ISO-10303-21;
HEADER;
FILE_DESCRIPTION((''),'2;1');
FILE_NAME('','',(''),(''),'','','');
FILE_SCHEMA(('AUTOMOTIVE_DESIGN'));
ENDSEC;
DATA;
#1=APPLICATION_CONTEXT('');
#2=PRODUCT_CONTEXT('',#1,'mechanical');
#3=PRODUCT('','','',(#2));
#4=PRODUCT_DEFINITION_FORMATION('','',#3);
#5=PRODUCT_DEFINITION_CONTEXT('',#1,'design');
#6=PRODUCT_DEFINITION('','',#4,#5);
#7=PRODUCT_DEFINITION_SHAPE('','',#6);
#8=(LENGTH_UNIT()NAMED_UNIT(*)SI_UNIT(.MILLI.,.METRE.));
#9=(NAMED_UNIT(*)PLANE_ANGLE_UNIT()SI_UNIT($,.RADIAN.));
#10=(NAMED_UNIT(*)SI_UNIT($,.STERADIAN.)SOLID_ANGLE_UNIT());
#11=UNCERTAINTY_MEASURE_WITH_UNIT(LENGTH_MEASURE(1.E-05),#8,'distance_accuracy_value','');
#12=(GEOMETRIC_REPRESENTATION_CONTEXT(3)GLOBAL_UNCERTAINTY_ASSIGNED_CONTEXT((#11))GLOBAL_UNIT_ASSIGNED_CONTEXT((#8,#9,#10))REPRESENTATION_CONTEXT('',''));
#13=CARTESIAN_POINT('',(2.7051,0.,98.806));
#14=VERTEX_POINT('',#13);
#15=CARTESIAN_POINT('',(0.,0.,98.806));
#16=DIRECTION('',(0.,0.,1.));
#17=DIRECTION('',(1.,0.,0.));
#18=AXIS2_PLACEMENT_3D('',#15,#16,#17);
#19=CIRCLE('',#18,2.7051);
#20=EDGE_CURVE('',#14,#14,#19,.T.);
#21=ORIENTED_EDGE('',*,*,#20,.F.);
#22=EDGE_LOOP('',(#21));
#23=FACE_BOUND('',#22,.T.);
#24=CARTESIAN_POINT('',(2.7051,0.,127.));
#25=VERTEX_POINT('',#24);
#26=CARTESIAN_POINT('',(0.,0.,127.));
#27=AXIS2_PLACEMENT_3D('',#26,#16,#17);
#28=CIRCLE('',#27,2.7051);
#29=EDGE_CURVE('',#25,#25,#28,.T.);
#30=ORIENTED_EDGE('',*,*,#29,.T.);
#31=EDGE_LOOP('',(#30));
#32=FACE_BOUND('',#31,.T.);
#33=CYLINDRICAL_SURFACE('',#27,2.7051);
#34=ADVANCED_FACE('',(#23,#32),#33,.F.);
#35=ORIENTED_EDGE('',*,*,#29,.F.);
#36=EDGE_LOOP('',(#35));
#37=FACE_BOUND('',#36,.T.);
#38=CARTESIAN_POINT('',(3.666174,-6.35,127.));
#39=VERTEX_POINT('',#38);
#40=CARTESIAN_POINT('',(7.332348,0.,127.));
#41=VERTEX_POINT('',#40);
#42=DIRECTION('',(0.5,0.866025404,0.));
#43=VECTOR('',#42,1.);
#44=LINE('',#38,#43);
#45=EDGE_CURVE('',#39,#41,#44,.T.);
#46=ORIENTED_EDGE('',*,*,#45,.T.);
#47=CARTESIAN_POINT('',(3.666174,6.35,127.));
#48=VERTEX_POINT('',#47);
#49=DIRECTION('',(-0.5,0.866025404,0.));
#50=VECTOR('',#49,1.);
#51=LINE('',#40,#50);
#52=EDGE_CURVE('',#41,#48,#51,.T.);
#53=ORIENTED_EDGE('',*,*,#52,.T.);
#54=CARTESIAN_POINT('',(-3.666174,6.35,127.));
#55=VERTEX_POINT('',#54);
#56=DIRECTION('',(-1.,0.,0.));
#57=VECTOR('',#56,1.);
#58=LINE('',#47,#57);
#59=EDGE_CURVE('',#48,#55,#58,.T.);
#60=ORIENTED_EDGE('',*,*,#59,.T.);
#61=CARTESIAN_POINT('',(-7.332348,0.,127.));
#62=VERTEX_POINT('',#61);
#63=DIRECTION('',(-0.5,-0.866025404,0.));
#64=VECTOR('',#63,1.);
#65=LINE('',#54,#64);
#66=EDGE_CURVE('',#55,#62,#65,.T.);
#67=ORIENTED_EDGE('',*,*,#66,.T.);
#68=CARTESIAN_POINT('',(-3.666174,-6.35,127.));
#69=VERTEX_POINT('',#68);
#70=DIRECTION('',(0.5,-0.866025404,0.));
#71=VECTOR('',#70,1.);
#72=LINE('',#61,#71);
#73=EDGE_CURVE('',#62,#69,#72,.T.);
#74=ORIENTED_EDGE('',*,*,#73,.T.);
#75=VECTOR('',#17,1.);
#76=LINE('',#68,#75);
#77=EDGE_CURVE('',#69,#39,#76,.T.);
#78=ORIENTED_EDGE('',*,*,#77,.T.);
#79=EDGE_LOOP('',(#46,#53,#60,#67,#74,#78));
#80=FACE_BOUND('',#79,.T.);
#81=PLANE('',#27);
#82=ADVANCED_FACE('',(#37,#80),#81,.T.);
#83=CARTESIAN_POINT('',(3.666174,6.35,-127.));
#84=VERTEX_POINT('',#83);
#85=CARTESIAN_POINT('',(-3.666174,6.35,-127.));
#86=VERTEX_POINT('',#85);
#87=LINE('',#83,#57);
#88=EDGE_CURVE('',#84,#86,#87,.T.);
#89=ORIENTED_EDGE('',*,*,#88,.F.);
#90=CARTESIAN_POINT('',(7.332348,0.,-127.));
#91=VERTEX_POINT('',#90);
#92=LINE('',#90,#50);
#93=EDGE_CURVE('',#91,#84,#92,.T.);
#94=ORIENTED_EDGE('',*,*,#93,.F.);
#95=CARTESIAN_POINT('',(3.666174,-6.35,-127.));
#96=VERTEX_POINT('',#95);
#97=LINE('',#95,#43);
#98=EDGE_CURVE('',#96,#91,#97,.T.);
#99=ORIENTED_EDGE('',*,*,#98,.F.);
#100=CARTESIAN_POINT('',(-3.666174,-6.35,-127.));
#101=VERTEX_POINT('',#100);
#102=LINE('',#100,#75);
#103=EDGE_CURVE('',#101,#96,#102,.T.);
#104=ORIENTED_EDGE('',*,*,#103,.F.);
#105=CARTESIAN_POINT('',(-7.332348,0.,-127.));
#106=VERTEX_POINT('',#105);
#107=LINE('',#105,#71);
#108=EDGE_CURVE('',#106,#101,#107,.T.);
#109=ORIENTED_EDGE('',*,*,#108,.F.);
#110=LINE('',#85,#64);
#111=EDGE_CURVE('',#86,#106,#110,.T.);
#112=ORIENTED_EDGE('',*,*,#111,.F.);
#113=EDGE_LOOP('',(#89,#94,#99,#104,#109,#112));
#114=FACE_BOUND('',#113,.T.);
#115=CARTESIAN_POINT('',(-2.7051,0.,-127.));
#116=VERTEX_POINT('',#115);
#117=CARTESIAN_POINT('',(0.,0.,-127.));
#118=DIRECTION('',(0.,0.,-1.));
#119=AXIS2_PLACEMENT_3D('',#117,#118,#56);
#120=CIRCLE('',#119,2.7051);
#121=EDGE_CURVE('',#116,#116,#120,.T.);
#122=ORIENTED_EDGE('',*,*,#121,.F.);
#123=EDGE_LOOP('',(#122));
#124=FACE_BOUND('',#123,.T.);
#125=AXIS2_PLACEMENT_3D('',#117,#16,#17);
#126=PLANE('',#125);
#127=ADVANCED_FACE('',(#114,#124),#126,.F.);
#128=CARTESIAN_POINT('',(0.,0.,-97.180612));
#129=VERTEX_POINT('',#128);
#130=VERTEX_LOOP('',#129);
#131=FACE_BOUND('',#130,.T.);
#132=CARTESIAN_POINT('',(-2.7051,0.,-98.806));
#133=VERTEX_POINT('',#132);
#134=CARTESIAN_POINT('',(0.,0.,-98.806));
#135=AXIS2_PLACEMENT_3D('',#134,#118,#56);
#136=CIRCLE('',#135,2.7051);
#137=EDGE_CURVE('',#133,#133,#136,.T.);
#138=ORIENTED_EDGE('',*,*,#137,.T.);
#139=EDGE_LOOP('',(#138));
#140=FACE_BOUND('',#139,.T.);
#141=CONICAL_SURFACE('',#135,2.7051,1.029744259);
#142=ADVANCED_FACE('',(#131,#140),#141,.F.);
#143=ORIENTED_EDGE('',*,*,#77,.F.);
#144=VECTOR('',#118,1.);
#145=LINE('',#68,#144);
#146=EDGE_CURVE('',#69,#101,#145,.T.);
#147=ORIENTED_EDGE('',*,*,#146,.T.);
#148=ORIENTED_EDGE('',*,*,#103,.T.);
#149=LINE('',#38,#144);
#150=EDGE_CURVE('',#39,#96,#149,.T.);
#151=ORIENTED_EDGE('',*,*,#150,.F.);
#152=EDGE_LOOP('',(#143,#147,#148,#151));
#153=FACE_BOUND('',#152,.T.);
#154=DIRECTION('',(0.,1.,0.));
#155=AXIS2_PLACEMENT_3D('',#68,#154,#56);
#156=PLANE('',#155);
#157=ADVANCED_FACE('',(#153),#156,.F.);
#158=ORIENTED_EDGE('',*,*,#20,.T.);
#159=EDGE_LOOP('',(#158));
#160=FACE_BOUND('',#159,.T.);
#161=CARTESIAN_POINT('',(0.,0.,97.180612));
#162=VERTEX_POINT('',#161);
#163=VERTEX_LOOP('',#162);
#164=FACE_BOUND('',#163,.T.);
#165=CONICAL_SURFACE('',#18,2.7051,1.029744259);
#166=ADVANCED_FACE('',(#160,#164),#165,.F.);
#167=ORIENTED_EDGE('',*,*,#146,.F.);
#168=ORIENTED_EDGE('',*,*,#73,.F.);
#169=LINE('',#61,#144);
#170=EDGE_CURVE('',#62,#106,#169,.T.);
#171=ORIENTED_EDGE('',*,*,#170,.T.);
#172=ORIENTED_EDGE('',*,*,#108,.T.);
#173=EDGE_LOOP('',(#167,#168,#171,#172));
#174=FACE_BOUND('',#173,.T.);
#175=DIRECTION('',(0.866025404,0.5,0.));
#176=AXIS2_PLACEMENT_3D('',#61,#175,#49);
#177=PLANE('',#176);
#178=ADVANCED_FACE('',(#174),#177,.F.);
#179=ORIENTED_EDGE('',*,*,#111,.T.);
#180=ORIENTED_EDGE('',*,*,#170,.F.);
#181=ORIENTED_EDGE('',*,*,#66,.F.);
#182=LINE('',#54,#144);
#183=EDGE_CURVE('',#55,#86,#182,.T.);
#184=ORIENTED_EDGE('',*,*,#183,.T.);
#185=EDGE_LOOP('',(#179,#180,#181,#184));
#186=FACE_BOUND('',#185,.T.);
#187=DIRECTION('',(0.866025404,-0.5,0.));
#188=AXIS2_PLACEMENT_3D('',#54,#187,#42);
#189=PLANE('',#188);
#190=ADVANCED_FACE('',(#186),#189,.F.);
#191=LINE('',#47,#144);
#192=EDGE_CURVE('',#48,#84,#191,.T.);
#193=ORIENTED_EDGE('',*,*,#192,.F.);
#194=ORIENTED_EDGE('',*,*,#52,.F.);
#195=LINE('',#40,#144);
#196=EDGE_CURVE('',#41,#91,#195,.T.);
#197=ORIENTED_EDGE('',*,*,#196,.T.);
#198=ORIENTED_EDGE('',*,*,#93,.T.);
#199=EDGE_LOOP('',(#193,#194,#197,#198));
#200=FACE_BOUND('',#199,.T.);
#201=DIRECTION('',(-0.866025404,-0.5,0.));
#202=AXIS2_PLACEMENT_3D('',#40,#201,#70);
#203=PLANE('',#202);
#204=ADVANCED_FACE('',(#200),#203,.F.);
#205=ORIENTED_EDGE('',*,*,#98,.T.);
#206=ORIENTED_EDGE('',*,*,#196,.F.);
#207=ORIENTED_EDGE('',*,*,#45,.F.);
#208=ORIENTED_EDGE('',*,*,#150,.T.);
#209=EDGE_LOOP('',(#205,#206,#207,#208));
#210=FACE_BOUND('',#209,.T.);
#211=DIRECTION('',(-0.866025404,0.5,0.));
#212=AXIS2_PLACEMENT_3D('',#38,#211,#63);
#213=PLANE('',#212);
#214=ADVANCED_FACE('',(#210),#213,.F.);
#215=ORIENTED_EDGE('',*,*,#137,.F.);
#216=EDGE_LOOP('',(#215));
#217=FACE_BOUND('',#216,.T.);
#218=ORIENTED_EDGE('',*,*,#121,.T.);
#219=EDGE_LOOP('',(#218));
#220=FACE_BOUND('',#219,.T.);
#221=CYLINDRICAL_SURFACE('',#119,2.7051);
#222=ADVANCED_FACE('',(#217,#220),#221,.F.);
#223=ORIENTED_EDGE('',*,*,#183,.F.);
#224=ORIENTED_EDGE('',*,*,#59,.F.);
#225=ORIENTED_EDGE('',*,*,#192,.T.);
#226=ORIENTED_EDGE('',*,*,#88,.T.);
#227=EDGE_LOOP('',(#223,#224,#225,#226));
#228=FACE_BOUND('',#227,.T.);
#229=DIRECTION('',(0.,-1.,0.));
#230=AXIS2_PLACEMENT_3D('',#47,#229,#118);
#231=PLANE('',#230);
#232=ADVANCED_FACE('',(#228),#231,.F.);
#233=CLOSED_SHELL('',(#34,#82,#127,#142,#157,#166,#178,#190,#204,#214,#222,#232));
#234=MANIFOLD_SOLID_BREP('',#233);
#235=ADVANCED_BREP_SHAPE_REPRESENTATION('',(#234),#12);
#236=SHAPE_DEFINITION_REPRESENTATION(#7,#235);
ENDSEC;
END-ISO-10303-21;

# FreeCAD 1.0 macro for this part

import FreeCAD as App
import Part
import Sketcher
from FreeCAD import Vector
Q = App.Units.Quantity


def add_polygon(sketch, points):
    """Adds a closed chain of lines whose ends are joined by coincident constraints."""
    first, n = sketch.GeometryCount, len(points)
    for a, b in zip(points, points[1:] + points[:1]):
        sketch.addGeometry(Part.LineSegment(App.Vector(*a, 0), App.Vector(*b, 0)), False)
    for i in range(n):
        sketch.addConstraint(Sketcher.Constraint("Coincident", first + i, 2, first + (i + 1) % n, 1))

doc = App.newDocument("Part")
body = doc.addObject("PartDesign::Body", "Body")

# Sketch on XY plane
sketch1 = body.newObject("Sketcher::SketchObject", "Sketch")
sketch1.AttachmentSupport = (doc.getObject("XY_Plane"), [""])
sketch1.MapMode = "FlatFace"
add_polygon(sketch1, [(7, 0), (4, 6), (-4, 6), (-7, 0), (-4, -6), (4, -6)])  # lines 0-5
sketch1.addConstraint(Sketcher.Constraint("Horizontal", 1))
sketch1.addConstraint(Sketcher.Constraint("Horizontal", 4))
sketch1.addConstraint(Sketcher.Constraint("Symmetric", 0, 2, 3, 2, -1, 1))
sketch1.addConstraint(Sketcher.Constraint("Symmetric", 2, 2, 5, 2, -1, 1))
sketch1.addConstraint(Sketcher.Constraint("PointOnObject", 2, 2, -1))
sketch1.addConstraint(Sketcher.Constraint("Parallel", 2, 5))
sketch1.addConstraint(Sketcher.Constraint("Vertical", 1, 2, 3, 2))
sketch1.addConstraint(Sketcher.Constraint("Angle", 0, Q("120 deg")))
sketch1.addConstraint(Sketcher.Constraint("DistanceY", 3, 2, 1, 2, Q("0.5 in")))
sketch1.addConstraint(Sketcher.Constraint("DistanceX", 1, 2, 1, 1, 7.332348))
pad1 = body.newObject("PartDesign::Pad", "Pad")
pad1.Profile = sketch1
pad1.Length = Q("10 in")
pad1.Midplane = True

# Sketch on XY plane
sketch2 = body.newObject("Sketcher::SketchObject", "Sketch001")
sketch2.AttachmentSupport = (doc.getObject("XY_Plane"), [""])
sketch2.MapMode = "FlatFace"
sketch2.AttachmentOffset = App.Placement(Vector(0, 0, 5 * 25.4), App.Rotation())
sketch2.addGeometry(Part.Circle(Vector(0, 0, 0), Vector(0, 0, 1), 2.7), False)
sketch2.addConstraint(Sketcher.Constraint("Coincident", 0, 3, -1, 1))
sketch2.addConstraint(Sketcher.Constraint("Diameter", 0, Q("0.213 in")))
doc.recompute()
hole = body.newObject("PartDesign::Hole", "Hole")
hole.Profile = sketch2
hole.ThreadType = "None"
hole.Diameter = Q("0.213 in")
hole.DepthType = "Dimension"
hole.Depth = Q("1.11 in")
hole.DrillPoint = "Angled"
hole.DrillPointAngle = 118

# Sketch on XY plane
sketch3 = body.newObject("Sketcher::SketchObject", "Sketch002")
sketch3.AttachmentSupport = (doc.getObject("XY_Plane"), [""])
sketch3.MapMode = "FlatFace"
sketch3.AttachmentOffset = App.Placement(Vector(0, 0, -5 * 25.4), App.Rotation())
sketch3.addGeometry(Part.Circle(Vector(0, 0, 0), Vector(0, 0, 1), 2.7), False)
sketch3.addConstraint(Sketcher.Constraint("Coincident", 0, 3, -1, 1))
sketch3.addConstraint(Sketcher.Constraint("Diameter", 0, Q("0.213 in")))
doc.recompute()
hole2 = body.newObject("PartDesign::Hole", "Hole001")
hole2.Profile = sketch3
hole2.ThreadType = "None"
hole2.Diameter = Q("0.213 in")
hole2.DepthType = "Dimension"
hole2.Depth = Q("1.11 in")
hole2.DrillPoint = "Angled"
hole2.DrillPointAngle = 118
hole2.Reversed = True

doc.recompute()
